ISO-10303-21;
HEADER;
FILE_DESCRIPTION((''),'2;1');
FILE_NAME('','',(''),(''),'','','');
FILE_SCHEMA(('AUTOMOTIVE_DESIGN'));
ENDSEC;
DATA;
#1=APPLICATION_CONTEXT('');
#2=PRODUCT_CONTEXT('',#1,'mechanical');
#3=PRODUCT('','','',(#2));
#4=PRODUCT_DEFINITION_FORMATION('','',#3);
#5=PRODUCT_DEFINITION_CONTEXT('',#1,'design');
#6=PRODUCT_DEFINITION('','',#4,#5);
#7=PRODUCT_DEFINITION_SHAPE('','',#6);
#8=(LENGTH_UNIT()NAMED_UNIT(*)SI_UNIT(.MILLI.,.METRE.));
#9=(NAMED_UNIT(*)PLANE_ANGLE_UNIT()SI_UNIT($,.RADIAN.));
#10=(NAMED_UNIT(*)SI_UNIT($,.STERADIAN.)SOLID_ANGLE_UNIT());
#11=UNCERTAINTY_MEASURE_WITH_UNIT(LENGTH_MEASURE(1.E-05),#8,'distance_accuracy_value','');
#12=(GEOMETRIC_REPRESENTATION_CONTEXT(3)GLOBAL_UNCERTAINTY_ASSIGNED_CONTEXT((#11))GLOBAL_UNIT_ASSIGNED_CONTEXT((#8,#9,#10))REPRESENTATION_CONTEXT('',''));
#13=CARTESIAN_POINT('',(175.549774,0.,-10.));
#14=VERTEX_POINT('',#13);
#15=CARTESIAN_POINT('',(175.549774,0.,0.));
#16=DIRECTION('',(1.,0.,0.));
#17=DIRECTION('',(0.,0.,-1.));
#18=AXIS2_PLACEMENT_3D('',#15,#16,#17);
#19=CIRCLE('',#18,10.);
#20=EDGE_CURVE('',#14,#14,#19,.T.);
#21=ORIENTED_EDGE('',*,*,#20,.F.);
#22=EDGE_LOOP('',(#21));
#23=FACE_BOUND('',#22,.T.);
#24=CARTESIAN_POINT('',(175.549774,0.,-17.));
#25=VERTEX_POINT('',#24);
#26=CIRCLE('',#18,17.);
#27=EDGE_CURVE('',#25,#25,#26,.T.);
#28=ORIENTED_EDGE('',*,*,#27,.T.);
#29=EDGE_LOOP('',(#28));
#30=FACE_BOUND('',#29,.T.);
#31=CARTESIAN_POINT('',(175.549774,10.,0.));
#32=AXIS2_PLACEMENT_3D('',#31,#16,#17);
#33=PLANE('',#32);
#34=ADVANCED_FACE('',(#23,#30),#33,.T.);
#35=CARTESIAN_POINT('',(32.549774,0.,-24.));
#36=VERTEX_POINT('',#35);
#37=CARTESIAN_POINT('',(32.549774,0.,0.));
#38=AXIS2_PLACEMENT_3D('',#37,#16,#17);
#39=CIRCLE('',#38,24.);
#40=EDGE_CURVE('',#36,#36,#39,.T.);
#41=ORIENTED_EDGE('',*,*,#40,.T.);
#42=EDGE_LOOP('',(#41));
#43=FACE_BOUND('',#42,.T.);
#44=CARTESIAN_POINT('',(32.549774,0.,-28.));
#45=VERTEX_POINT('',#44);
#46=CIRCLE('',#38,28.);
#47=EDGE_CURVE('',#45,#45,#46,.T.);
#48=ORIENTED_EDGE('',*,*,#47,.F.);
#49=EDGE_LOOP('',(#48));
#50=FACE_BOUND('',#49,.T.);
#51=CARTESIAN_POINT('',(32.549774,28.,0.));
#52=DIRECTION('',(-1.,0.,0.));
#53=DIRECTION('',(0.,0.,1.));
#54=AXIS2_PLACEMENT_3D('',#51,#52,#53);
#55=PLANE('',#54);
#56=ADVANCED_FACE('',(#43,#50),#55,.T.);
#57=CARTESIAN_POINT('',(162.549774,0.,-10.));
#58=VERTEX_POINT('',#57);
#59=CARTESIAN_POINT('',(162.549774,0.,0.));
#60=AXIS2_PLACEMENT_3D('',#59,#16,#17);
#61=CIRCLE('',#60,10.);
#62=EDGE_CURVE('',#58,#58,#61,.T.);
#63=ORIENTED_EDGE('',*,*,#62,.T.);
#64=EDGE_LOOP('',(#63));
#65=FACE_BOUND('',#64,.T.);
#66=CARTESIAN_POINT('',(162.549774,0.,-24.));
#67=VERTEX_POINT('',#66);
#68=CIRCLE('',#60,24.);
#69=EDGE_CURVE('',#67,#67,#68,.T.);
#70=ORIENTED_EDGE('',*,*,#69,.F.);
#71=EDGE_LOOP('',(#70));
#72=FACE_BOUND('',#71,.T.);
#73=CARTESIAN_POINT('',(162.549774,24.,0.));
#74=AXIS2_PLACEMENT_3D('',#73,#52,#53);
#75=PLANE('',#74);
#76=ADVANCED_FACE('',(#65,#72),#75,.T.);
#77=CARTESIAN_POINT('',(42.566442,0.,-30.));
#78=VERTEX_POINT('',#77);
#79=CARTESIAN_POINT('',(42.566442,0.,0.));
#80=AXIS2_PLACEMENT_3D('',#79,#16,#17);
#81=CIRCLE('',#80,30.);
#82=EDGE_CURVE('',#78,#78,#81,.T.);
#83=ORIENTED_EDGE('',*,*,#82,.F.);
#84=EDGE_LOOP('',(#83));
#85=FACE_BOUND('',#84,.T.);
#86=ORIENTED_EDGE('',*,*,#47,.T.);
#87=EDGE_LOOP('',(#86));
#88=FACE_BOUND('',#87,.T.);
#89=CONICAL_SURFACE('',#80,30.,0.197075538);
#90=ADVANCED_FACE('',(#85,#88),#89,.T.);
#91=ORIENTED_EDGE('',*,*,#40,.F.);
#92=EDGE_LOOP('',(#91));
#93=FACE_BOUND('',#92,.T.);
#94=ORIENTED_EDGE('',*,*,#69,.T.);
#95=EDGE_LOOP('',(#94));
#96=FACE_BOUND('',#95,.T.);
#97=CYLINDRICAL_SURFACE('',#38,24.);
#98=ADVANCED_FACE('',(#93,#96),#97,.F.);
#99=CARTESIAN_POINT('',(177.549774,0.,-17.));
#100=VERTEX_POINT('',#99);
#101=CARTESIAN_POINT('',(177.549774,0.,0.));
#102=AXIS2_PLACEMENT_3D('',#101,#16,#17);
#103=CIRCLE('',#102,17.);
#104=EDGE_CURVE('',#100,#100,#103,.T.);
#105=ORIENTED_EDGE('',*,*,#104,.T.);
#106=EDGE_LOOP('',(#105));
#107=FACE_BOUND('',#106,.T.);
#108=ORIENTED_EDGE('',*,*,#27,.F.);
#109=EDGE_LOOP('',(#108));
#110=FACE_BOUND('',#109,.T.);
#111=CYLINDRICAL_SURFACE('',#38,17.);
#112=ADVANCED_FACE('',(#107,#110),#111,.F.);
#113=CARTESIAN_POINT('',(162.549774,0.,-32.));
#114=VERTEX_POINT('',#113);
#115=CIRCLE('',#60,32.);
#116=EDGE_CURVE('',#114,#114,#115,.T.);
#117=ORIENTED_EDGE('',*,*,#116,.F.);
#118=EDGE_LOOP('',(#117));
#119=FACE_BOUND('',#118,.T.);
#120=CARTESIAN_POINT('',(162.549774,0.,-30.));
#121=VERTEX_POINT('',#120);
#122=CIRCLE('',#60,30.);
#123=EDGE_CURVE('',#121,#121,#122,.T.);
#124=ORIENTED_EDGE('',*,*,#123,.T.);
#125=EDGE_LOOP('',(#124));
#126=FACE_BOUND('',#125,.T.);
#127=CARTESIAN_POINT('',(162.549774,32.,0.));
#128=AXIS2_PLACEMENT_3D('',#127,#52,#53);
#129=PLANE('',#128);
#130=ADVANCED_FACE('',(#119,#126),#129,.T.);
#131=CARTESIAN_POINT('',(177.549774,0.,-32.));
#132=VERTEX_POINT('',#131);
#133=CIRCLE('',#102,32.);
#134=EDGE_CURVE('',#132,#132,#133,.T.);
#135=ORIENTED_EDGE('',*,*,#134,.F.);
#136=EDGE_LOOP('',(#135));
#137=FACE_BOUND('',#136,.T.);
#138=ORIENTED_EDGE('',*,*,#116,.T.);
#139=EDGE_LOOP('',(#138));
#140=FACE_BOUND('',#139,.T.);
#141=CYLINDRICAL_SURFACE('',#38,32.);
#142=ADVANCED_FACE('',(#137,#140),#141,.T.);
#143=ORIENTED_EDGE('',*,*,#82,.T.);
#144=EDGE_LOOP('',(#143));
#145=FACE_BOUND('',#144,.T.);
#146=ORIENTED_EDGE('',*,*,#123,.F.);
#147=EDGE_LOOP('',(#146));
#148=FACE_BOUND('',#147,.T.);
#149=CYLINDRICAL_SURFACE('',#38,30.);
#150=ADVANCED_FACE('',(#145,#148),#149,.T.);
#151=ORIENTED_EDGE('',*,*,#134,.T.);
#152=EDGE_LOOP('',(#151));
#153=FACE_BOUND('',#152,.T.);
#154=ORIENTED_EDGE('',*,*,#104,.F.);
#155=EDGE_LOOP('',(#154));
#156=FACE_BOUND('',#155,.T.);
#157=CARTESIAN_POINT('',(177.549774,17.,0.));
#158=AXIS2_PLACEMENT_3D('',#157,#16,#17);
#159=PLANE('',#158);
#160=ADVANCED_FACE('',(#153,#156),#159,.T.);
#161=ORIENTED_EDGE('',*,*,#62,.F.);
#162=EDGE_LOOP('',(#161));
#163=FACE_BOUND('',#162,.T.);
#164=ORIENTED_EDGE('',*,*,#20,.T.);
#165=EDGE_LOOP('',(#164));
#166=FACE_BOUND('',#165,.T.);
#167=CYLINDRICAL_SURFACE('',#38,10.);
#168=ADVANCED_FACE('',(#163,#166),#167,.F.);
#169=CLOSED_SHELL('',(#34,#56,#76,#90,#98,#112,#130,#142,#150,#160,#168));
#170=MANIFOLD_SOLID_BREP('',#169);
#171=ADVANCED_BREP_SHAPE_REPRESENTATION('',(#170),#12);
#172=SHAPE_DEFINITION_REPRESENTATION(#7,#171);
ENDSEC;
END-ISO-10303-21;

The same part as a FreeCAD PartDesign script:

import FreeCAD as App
import Part
import Sketcher
from FreeCAD import Vector
Q = App.Units.Quantity


def add_polygon(sketch, points):
    """Adds a closed chain of lines whose ends are joined by coincident constraints."""
    first, n = sketch.GeometryCount, len(points)
    for a, b in zip(points, points[1:] + points[:1]):
        sketch.addGeometry(Part.LineSegment(App.Vector(*a, 0), App.Vector(*b, 0)), False)
    for i in range(n):
        sketch.addConstraint(Sketcher.Constraint("Coincident", first + i, 2, first + (i + 1) % n, 1))

doc = App.newDocument("Part")
params = doc.addObject("Spreadsheet::Sheet", "Params")
for row, (alias, value) in enumerate([
    ("sketch1_width", "2 mm"),
    ("sketch1_width2", "15 mm"),
    ("sketch1_width3", "130 mm"),
    ("sketch1_height", "7 mm"),
    ("sketch1_height2", "4 mm"),
    ("revolution_angle", "360 deg"),
], start=1):
    params.set(f"A{row}", alias)
    params.set(f"B{row}", "=" + value)
    params.setAlias(f"B{row}", alias)

body = doc.addObject("PartDesign::Body", "Body")

# Sketch on XY plane
sketch1 = body.newObject("Sketcher::SketchObject", "Sketch")
sketch1.AttachmentSupport = (doc.getObject("XY_Plane"), [""])
sketch1.MapMode = "FlatFace"
add_polygon(sketch1, [(175.5, 10), (175.5, 17), (177.5, 17), (177.5, 32), (162.5, 32), (162.5, 30), (42.6, 30), (32.5, 28), (32.5, 24), (162.5, 24), (162.5, 10)])  # lines 0-10
sketch1.addConstraint([
    Sketcher.Constraint("Vertical", 0),
    Sketcher.Constraint("Horizontal", 1),
    Sketcher.Constraint("Vertical", 2),
    Sketcher.Constraint("Horizontal", 3),
    Sketcher.Constraint("Vertical", 4),
    Sketcher.Constraint("Horizontal", 5),
    Sketcher.Constraint("Vertical", 7),
    Sketcher.Constraint("Horizontal", 8),
    Sketcher.Constraint("Vertical", 9),
    Sketcher.Constraint("Horizontal", 10),
    Sketcher.Constraint("Vertical", 4, 2, 8, 2),
    Sketcher.Constraint("Equal", 3, 2),
    Sketcher.Constraint("Equal", 1, 4),
    Sketcher.Constraint("DistanceX", 1, 1, 1, 2, Q("2 mm")),
    Sketcher.Constraint("DistanceX", 3, 2, 3, 1, Q("15 mm")),
    Sketcher.Constraint("DistanceX", 8, 1, 8, 2, Q("130 mm")),
    Sketcher.Constraint("DistanceY", 0, 1, 0, 2, Q("7 mm")),
    Sketcher.Constraint("DistanceY", 7, 2, 7, 1, Q("4 mm")),
    Sketcher.Constraint("DistanceY", 9, 2, 9, 1, Q("14 mm")),
    Sketcher.Constraint("DistanceY", -1, 1, 0, 2, Q("17 mm")),
    Sketcher.Constraint("DistanceX", 5, 2, 5, 1, Q("119.983332 mm")),
    Sketcher.Constraint("DistanceX", -1, 1, 5, 2, Q("42.566442 mm")),
])
sketch1.setExpression("Constraints[24]", "Params.sketch1_width")
sketch1.setExpression("Constraints[25]", "Params.sketch1_width2")
sketch1.setExpression("Constraints[26]", "Params.sketch1_width3")
sketch1.setExpression("Constraints[27]", "Params.sketch1_height")
sketch1.setExpression("Constraints[28]", "Params.sketch1_height2")
revolution = body.newObject("PartDesign::Revolution", "Revolution")
revolution.Profile = sketch1
revolution.ReferenceAxis = (sketch1, ["H_Axis"])
revolution.setExpression("Angle", "Params.revolution_angle")

doc.recompute()
